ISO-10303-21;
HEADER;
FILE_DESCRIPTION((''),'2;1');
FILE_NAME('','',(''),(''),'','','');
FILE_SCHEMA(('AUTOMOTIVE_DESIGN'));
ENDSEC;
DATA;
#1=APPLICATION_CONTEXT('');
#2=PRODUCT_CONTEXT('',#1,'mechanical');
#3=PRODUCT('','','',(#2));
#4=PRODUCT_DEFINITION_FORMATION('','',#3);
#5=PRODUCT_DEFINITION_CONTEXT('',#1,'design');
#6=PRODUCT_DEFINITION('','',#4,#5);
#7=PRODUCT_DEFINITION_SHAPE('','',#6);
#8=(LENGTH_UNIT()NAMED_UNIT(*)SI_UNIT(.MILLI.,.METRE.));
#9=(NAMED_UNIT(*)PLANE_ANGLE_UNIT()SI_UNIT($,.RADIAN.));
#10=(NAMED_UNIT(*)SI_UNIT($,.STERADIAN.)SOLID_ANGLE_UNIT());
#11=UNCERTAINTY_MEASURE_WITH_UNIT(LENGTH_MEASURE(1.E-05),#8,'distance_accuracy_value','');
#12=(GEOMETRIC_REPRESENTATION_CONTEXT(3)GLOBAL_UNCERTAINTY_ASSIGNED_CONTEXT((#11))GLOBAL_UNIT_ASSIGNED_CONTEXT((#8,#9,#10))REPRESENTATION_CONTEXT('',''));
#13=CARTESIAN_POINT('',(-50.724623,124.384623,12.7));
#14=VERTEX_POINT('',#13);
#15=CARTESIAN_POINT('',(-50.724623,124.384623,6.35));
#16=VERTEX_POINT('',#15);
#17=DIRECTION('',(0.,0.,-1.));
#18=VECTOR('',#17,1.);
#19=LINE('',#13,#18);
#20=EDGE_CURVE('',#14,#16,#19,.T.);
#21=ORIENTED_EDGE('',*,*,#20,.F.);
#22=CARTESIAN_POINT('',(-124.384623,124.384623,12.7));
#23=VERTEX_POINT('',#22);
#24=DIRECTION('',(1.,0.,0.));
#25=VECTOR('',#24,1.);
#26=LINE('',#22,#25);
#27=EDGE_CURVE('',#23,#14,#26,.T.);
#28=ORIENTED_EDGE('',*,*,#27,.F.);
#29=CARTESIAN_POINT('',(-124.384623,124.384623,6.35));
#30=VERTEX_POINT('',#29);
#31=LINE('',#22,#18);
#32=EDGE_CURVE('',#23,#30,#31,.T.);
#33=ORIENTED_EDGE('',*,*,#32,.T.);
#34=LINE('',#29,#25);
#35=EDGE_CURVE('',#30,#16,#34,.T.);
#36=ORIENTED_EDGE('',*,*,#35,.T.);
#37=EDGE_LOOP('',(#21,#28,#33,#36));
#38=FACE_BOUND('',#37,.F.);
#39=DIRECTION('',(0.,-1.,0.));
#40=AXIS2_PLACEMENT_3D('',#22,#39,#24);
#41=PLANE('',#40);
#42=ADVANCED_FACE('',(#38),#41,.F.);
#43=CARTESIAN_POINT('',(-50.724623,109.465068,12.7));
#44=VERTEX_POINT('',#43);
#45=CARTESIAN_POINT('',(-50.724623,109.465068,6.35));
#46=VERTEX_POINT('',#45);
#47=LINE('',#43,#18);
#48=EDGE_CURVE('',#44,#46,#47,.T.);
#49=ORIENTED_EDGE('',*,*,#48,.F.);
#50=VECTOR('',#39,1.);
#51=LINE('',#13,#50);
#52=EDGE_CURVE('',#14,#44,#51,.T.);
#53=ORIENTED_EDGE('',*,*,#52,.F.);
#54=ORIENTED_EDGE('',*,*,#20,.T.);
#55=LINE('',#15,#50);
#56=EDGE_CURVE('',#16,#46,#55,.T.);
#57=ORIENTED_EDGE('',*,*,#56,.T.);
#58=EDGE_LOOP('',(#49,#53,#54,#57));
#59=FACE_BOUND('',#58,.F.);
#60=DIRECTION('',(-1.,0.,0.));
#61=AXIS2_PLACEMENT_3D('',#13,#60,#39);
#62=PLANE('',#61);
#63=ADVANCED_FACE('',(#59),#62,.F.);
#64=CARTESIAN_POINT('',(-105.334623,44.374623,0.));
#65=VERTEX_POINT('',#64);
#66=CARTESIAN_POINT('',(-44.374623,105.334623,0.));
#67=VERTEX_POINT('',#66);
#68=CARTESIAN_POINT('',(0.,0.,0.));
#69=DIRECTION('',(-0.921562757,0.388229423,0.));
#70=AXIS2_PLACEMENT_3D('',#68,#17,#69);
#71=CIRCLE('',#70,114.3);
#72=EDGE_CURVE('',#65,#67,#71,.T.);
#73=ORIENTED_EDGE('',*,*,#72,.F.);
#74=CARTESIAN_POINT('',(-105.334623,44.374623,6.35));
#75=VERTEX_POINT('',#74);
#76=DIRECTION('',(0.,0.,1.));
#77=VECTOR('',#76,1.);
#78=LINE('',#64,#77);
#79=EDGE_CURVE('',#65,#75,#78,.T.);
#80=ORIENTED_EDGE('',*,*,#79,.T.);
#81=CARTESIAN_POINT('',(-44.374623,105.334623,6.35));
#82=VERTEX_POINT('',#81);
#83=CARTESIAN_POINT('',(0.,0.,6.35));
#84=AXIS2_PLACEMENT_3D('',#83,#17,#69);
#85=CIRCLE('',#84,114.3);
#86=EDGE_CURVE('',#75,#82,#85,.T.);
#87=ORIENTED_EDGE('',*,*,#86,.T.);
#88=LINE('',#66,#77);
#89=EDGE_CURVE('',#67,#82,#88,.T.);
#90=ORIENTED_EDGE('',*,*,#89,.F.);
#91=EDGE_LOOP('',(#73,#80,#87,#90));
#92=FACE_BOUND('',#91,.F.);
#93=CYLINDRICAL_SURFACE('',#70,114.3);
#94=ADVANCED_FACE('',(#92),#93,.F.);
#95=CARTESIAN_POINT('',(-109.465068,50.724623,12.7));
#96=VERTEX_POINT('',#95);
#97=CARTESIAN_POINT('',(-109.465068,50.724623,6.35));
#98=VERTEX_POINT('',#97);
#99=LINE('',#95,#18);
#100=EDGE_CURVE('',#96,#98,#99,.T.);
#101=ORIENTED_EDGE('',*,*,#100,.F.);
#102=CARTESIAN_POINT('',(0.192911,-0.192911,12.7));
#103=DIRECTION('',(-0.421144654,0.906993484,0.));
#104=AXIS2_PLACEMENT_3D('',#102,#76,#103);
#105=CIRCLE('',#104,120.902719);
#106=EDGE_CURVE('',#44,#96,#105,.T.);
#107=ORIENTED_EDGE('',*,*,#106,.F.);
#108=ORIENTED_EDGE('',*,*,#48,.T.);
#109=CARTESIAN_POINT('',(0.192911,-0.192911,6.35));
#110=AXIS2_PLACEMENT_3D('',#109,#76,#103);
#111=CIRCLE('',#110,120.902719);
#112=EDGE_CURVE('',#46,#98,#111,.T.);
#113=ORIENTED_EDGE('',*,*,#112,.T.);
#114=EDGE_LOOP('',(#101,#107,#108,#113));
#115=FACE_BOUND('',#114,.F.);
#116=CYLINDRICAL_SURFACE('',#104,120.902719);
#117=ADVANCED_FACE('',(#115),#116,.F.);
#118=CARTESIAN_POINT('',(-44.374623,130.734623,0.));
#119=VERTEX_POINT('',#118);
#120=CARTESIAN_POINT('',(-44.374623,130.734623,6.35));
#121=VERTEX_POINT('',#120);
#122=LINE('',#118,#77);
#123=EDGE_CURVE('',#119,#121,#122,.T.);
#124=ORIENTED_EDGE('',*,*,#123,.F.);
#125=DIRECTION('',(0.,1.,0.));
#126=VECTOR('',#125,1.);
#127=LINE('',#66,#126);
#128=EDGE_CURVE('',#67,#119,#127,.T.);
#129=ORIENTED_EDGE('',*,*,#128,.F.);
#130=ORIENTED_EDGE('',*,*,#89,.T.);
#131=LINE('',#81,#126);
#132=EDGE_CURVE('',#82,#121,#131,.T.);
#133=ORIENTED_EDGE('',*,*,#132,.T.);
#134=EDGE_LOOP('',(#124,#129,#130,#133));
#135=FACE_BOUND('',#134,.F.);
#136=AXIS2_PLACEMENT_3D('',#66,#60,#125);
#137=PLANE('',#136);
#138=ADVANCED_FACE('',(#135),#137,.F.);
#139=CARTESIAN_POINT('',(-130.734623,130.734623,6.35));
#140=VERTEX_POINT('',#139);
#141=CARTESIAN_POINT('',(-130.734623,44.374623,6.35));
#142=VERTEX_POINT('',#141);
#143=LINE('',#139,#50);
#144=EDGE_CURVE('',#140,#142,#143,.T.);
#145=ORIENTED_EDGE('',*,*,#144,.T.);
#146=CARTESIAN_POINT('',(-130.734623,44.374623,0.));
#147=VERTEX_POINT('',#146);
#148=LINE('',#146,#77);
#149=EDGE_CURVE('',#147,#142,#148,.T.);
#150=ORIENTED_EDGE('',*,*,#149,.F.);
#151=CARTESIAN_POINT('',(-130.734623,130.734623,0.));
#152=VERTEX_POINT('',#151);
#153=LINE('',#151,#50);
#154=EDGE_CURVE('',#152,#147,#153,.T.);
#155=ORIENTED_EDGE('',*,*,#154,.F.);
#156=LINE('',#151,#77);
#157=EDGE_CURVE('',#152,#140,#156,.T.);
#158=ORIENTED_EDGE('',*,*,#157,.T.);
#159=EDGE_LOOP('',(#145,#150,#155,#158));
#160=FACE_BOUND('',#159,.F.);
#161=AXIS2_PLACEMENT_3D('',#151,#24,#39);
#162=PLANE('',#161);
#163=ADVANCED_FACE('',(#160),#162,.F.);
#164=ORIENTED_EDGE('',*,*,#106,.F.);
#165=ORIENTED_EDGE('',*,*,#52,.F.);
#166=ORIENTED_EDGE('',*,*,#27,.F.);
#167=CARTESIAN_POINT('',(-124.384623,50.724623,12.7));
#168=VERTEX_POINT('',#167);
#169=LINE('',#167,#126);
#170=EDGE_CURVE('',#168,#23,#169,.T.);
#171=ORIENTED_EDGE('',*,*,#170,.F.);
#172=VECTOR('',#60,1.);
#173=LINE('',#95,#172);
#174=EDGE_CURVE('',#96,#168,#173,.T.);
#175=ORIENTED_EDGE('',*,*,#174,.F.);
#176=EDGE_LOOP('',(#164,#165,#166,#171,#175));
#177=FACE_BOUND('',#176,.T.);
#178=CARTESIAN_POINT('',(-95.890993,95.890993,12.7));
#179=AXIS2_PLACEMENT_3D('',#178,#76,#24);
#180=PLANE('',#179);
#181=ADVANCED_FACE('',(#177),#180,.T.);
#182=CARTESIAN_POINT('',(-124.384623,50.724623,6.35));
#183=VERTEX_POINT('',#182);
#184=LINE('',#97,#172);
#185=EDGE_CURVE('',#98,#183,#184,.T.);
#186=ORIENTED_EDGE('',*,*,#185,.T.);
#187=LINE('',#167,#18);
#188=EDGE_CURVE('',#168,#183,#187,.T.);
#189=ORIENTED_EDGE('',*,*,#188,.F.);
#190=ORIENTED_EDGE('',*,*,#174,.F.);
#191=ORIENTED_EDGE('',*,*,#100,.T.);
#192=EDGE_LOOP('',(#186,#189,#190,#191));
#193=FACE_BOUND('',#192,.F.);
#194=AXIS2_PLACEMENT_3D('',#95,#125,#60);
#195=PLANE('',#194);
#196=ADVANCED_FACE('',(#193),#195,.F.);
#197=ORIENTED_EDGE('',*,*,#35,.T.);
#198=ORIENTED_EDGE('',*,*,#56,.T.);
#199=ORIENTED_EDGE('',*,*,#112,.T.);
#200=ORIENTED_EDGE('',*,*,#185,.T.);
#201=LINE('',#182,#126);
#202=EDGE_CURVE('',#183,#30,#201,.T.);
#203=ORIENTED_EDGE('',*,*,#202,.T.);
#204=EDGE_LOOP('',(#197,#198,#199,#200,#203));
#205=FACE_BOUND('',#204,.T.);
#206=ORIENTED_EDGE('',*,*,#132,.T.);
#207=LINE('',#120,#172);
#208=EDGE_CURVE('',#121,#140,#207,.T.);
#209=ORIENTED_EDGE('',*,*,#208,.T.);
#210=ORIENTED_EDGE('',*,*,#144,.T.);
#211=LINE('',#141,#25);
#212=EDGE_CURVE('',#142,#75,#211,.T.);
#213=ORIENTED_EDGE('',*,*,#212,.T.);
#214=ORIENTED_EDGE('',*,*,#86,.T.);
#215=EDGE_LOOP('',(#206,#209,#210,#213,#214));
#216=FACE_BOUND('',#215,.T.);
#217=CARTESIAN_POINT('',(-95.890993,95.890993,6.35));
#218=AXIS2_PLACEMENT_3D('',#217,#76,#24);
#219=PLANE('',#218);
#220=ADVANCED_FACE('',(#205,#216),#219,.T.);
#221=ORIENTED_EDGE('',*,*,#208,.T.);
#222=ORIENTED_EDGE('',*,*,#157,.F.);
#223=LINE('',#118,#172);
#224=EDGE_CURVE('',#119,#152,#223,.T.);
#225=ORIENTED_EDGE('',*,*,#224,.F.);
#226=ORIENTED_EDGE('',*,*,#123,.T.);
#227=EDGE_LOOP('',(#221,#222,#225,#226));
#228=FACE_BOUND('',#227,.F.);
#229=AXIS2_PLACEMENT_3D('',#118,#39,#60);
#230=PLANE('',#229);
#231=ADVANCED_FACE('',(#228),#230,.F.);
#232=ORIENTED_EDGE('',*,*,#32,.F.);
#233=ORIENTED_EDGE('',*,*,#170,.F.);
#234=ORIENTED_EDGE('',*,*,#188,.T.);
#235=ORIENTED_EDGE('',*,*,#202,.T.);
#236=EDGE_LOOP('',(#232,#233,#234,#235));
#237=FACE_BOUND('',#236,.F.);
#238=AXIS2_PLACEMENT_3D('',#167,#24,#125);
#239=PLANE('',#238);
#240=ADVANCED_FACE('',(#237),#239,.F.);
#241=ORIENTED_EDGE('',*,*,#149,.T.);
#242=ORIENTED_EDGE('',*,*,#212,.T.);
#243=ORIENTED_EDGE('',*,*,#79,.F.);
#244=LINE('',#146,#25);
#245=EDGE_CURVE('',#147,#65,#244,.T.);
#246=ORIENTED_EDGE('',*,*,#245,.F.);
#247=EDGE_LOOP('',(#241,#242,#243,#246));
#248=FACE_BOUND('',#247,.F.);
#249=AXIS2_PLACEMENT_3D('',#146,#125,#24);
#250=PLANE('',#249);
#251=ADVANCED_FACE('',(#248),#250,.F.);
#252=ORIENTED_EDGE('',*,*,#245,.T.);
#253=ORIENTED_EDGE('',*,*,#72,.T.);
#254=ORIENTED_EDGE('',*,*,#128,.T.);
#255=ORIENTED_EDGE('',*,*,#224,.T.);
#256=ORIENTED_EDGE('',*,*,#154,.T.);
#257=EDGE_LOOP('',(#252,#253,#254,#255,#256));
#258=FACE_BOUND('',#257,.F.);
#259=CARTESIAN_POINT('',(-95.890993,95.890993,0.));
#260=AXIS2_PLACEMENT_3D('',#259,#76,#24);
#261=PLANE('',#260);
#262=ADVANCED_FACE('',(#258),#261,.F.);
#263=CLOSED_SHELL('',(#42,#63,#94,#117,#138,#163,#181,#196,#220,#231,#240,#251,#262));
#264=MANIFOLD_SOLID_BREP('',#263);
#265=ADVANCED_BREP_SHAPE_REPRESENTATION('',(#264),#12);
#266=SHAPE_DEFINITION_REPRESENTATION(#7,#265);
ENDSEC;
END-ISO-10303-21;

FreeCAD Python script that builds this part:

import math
import FreeCAD as App
import Part
import Sketcher

V = App.Vector
Q = App.Units.Quantity

doc = App.newDocument("Part")
body = doc.addObject("PartDesign::Body", "Body")

sketch1 = body.newObject("Sketcher::SketchObject", "Sketch")
sketch1.AttachmentSupport = (doc.getObject("XY_Plane"), [""])
sketch1.MapMode = "FlatFace"
sketch1.addGeometry(Part.LineSegment(V(-44.374623, 130.734623, 0), V(-130.734623, 130.734623, 0)), False)
sketch1.addGeometry(Part.LineSegment(V(-130.734623, 130.734623, 0), V(-130.734623, 44.374623, 0)), False)
sketch1.addGeometry(Part.LineSegment(V(-130.734623, 44.374623, 0), V(-105.334623, 44.374623, 0)), False)
sketch1.addGeometry(Part.ArcOfCircle(Part.Circle(V(0, 0, 0), V(0, 0, 1), 114.3), math.radians(112.844374), math.radians(157.155626)), False)
sketch1.addGeometry(Part.LineSegment(V(-44.374623, 105.334623, 0), V(-44.374623, 130.734623, 0)), False)
sketch1.addConstraint(Sketcher.Constraint("Coincident", 0, 2, 1, 1))
sketch1.addConstraint(Sketcher.Constraint("Coincident", 1, 2, 2, 1))
sketch1.addConstraint(Sketcher.Constraint("Coincident", 2, 2, 3, 2))
sketch1.addConstraint(Sketcher.Constraint("Coincident", 3, 1, 4, 1))
sketch1.addConstraint(Sketcher.Constraint("Coincident", 4, 2, 0, 1))
sketch1.addConstraint(Sketcher.Constraint("Horizontal", 0))
sketch1.addConstraint(Sketcher.Constraint("Vertical", 1))
sketch1.addConstraint(Sketcher.Constraint("Horizontal", 2))
sketch1.addConstraint(Sketcher.Constraint("Vertical", 4))
sketch1.addConstraint(Sketcher.Constraint("Coincident", 3, 3, -1, 1))
sketch1.addConstraint(Sketcher.Constraint("Equal", 0, 1))
sketch1.addConstraint(Sketcher.Constraint("Equal", 2, 4))
sketch1.addConstraint(Sketcher.Constraint("Radius", 3, Q("4.5 in")))
sketch1.addConstraint(Sketcher.Constraint("DistanceX", 2, 1, 2, 2, Q("1 in")))
sketch1.addConstraint(Sketcher.Constraint("DistanceX", 0, 2, 0, 1, Q("3.4 in")))
pad1 = body.newObject("PartDesign::Pad", "Pad")
pad1.Profile = sketch1
pad1.Length = Q("0.5 in")

sketch2 = body.newObject("Sketcher::SketchObject", "Sketch001")
sketch2.AttachmentSupport = (doc.getObject("XY_Plane"), [""])
sketch2.MapMode = "FlatFace"
sketch2.AttachmentOffset = App.Placement(V(0, 0, 0.5 * 25.4), App.Rotation())
sketch2.addGeometry(Part.LineSegment(V(-44.374623, 130.734623, 0), V(-130.734623, 130.734623, 0)), False)
sketch2.addGeometry(Part.LineSegment(V(-130.734623, 130.734623, 0), V(-130.734623, 44.374623, 0)), False)
sketch2.addGeometry(Part.LineSegment(V(-130.734623, 44.374623, 0), V(-105.334623, 44.374623, 0)), False)
sketch2.addGeometry(Part.ArcOfCircle(Part.Circle(V(0, 0, 0), V(0, 0, 1), 114.3), math.radians(112.844374), math.radians(157.155626)), False)
sketch2.addGeometry(Part.LineSegment(V(-44.374623, 105.334623, 0), V(-44.374623, 130.734623, 0)), False)
sketch2.addGeometry(Part.LineSegment(V(-124.384623, 50.724623, 0), V(-124.384623, 124.384623, 0)), False)
sketch2.addGeometry(Part.LineSegment(V(-124.384623, 124.384623, 0), V(-50.724623, 124.384623, 0)), False)
sketch2.addGeometry(Part.LineSegment(V(-50.724623, 124.384623, 0), V(-50.724623, 109.465068, 0)), False)
sketch2.addGeometry(Part.ArcOfCircle(Part.Circle(V(0.192911, -0.192911, 0), V(0, 0, 1), 120.902719), math.radians(114.906875), math.radians(155.093125)), False)
sketch2.addGeometry(Part.LineSegment(V(-109.465068, 50.724623, 0), V(-124.384623, 50.724623, 0)), False)
sketch2.addConstraint(Sketcher.Constraint("Coincident", 0, 2, 1, 1))
sketch2.addConstraint(Sketcher.Constraint("Coincident", 1, 2, 2, 1))
sketch2.addConstraint(Sketcher.Constraint("Coincident", 2, 2, 3, 2))
sketch2.addConstraint(Sketcher.Constraint("Coincident", 3, 1, 4, 1))
sketch2.addConstraint(Sketcher.Constraint("Coincident", 4, 2, 0, 1))
sketch2.addConstraint(Sketcher.Constraint("Coincident", 5, 2, 6, 1))
sketch2.addConstraint(Sketcher.Constraint("Coincident", 6, 2, 7, 1))
sketch2.addConstraint(Sketcher.Constraint("Coincident", 7, 2, 8, 1))
sketch2.addConstraint(Sketcher.Constraint("Coincident", 8, 2, 9, 1))
sketch2.addConstraint(Sketcher.Constraint("Coincident", 9, 2, 5, 1))
sketch2.addConstraint(Sketcher.Constraint("Horizontal", 0))
sketch2.addConstraint(Sketcher.Constraint("Vertical", 1))
sketch2.addConstraint(Sketcher.Constraint("Horizontal", 2))
sketch2.addConstraint(Sketcher.Constraint("Vertical", 4))
sketch2.addConstraint(Sketcher.Constraint("Vertical", 5))
sketch2.addConstraint(Sketcher.Constraint("Horizontal", 6))
sketch2.addConstraint(Sketcher.Constraint("Vertical", 7))
sketch2.addConstraint(Sketcher.Constraint("Horizontal", 9))
sketch2.addConstraint(Sketcher.Constraint("Coincident", 3, 3, -1, 1))
sketch2.addConstraint(Sketcher.Constraint("Equal", 0, 1))
sketch2.addConstraint(Sketcher.Constraint("Equal", 2, 4))
sketch2.addConstraint(Sketcher.Constraint("Equal", 6, 5))
sketch2.addConstraint(Sketcher.Constraint("Equal", 9, 7))
sketch2.addConstraint(Sketcher.Constraint("Radius", 3, Q("4.5 in")))
sketch2.addConstraint(Sketcher.Constraint("DistanceX", 2, 1, 2, 2, Q("1 in")))
sketch2.addConstraint(Sketcher.Constraint("DistanceX", 0, 2, 0, 1, Q("3.4 in")))
sketch2.addConstraint(Sketcher.Constraint("DistanceX", 6, 1, 6, 2, Q("2.9 in")))
sketch2.addConstraint(Sketcher.Constraint("DistanceX", 0, 2, 5, 2, Q("0.25 in")))
sketch2.addConstraint(Sketcher.Constraint("DistanceY", 5, 2, 0, 2, Q("0.25 in")))
sketch2.addConstraint(Sketcher.Constraint("Radius", 8, Q("120.902719 mm")))
sketch2.addConstraint(Sketcher.Constraint("DistanceX", 9, 2, 9, 1, Q("14.919555 mm")))
pocket1 = body.newObject("PartDesign::Pocket", "Pocket")
pocket1.Profile = sketch2
pocket1.Length = Q("0.25 in")

doc.recompute()
